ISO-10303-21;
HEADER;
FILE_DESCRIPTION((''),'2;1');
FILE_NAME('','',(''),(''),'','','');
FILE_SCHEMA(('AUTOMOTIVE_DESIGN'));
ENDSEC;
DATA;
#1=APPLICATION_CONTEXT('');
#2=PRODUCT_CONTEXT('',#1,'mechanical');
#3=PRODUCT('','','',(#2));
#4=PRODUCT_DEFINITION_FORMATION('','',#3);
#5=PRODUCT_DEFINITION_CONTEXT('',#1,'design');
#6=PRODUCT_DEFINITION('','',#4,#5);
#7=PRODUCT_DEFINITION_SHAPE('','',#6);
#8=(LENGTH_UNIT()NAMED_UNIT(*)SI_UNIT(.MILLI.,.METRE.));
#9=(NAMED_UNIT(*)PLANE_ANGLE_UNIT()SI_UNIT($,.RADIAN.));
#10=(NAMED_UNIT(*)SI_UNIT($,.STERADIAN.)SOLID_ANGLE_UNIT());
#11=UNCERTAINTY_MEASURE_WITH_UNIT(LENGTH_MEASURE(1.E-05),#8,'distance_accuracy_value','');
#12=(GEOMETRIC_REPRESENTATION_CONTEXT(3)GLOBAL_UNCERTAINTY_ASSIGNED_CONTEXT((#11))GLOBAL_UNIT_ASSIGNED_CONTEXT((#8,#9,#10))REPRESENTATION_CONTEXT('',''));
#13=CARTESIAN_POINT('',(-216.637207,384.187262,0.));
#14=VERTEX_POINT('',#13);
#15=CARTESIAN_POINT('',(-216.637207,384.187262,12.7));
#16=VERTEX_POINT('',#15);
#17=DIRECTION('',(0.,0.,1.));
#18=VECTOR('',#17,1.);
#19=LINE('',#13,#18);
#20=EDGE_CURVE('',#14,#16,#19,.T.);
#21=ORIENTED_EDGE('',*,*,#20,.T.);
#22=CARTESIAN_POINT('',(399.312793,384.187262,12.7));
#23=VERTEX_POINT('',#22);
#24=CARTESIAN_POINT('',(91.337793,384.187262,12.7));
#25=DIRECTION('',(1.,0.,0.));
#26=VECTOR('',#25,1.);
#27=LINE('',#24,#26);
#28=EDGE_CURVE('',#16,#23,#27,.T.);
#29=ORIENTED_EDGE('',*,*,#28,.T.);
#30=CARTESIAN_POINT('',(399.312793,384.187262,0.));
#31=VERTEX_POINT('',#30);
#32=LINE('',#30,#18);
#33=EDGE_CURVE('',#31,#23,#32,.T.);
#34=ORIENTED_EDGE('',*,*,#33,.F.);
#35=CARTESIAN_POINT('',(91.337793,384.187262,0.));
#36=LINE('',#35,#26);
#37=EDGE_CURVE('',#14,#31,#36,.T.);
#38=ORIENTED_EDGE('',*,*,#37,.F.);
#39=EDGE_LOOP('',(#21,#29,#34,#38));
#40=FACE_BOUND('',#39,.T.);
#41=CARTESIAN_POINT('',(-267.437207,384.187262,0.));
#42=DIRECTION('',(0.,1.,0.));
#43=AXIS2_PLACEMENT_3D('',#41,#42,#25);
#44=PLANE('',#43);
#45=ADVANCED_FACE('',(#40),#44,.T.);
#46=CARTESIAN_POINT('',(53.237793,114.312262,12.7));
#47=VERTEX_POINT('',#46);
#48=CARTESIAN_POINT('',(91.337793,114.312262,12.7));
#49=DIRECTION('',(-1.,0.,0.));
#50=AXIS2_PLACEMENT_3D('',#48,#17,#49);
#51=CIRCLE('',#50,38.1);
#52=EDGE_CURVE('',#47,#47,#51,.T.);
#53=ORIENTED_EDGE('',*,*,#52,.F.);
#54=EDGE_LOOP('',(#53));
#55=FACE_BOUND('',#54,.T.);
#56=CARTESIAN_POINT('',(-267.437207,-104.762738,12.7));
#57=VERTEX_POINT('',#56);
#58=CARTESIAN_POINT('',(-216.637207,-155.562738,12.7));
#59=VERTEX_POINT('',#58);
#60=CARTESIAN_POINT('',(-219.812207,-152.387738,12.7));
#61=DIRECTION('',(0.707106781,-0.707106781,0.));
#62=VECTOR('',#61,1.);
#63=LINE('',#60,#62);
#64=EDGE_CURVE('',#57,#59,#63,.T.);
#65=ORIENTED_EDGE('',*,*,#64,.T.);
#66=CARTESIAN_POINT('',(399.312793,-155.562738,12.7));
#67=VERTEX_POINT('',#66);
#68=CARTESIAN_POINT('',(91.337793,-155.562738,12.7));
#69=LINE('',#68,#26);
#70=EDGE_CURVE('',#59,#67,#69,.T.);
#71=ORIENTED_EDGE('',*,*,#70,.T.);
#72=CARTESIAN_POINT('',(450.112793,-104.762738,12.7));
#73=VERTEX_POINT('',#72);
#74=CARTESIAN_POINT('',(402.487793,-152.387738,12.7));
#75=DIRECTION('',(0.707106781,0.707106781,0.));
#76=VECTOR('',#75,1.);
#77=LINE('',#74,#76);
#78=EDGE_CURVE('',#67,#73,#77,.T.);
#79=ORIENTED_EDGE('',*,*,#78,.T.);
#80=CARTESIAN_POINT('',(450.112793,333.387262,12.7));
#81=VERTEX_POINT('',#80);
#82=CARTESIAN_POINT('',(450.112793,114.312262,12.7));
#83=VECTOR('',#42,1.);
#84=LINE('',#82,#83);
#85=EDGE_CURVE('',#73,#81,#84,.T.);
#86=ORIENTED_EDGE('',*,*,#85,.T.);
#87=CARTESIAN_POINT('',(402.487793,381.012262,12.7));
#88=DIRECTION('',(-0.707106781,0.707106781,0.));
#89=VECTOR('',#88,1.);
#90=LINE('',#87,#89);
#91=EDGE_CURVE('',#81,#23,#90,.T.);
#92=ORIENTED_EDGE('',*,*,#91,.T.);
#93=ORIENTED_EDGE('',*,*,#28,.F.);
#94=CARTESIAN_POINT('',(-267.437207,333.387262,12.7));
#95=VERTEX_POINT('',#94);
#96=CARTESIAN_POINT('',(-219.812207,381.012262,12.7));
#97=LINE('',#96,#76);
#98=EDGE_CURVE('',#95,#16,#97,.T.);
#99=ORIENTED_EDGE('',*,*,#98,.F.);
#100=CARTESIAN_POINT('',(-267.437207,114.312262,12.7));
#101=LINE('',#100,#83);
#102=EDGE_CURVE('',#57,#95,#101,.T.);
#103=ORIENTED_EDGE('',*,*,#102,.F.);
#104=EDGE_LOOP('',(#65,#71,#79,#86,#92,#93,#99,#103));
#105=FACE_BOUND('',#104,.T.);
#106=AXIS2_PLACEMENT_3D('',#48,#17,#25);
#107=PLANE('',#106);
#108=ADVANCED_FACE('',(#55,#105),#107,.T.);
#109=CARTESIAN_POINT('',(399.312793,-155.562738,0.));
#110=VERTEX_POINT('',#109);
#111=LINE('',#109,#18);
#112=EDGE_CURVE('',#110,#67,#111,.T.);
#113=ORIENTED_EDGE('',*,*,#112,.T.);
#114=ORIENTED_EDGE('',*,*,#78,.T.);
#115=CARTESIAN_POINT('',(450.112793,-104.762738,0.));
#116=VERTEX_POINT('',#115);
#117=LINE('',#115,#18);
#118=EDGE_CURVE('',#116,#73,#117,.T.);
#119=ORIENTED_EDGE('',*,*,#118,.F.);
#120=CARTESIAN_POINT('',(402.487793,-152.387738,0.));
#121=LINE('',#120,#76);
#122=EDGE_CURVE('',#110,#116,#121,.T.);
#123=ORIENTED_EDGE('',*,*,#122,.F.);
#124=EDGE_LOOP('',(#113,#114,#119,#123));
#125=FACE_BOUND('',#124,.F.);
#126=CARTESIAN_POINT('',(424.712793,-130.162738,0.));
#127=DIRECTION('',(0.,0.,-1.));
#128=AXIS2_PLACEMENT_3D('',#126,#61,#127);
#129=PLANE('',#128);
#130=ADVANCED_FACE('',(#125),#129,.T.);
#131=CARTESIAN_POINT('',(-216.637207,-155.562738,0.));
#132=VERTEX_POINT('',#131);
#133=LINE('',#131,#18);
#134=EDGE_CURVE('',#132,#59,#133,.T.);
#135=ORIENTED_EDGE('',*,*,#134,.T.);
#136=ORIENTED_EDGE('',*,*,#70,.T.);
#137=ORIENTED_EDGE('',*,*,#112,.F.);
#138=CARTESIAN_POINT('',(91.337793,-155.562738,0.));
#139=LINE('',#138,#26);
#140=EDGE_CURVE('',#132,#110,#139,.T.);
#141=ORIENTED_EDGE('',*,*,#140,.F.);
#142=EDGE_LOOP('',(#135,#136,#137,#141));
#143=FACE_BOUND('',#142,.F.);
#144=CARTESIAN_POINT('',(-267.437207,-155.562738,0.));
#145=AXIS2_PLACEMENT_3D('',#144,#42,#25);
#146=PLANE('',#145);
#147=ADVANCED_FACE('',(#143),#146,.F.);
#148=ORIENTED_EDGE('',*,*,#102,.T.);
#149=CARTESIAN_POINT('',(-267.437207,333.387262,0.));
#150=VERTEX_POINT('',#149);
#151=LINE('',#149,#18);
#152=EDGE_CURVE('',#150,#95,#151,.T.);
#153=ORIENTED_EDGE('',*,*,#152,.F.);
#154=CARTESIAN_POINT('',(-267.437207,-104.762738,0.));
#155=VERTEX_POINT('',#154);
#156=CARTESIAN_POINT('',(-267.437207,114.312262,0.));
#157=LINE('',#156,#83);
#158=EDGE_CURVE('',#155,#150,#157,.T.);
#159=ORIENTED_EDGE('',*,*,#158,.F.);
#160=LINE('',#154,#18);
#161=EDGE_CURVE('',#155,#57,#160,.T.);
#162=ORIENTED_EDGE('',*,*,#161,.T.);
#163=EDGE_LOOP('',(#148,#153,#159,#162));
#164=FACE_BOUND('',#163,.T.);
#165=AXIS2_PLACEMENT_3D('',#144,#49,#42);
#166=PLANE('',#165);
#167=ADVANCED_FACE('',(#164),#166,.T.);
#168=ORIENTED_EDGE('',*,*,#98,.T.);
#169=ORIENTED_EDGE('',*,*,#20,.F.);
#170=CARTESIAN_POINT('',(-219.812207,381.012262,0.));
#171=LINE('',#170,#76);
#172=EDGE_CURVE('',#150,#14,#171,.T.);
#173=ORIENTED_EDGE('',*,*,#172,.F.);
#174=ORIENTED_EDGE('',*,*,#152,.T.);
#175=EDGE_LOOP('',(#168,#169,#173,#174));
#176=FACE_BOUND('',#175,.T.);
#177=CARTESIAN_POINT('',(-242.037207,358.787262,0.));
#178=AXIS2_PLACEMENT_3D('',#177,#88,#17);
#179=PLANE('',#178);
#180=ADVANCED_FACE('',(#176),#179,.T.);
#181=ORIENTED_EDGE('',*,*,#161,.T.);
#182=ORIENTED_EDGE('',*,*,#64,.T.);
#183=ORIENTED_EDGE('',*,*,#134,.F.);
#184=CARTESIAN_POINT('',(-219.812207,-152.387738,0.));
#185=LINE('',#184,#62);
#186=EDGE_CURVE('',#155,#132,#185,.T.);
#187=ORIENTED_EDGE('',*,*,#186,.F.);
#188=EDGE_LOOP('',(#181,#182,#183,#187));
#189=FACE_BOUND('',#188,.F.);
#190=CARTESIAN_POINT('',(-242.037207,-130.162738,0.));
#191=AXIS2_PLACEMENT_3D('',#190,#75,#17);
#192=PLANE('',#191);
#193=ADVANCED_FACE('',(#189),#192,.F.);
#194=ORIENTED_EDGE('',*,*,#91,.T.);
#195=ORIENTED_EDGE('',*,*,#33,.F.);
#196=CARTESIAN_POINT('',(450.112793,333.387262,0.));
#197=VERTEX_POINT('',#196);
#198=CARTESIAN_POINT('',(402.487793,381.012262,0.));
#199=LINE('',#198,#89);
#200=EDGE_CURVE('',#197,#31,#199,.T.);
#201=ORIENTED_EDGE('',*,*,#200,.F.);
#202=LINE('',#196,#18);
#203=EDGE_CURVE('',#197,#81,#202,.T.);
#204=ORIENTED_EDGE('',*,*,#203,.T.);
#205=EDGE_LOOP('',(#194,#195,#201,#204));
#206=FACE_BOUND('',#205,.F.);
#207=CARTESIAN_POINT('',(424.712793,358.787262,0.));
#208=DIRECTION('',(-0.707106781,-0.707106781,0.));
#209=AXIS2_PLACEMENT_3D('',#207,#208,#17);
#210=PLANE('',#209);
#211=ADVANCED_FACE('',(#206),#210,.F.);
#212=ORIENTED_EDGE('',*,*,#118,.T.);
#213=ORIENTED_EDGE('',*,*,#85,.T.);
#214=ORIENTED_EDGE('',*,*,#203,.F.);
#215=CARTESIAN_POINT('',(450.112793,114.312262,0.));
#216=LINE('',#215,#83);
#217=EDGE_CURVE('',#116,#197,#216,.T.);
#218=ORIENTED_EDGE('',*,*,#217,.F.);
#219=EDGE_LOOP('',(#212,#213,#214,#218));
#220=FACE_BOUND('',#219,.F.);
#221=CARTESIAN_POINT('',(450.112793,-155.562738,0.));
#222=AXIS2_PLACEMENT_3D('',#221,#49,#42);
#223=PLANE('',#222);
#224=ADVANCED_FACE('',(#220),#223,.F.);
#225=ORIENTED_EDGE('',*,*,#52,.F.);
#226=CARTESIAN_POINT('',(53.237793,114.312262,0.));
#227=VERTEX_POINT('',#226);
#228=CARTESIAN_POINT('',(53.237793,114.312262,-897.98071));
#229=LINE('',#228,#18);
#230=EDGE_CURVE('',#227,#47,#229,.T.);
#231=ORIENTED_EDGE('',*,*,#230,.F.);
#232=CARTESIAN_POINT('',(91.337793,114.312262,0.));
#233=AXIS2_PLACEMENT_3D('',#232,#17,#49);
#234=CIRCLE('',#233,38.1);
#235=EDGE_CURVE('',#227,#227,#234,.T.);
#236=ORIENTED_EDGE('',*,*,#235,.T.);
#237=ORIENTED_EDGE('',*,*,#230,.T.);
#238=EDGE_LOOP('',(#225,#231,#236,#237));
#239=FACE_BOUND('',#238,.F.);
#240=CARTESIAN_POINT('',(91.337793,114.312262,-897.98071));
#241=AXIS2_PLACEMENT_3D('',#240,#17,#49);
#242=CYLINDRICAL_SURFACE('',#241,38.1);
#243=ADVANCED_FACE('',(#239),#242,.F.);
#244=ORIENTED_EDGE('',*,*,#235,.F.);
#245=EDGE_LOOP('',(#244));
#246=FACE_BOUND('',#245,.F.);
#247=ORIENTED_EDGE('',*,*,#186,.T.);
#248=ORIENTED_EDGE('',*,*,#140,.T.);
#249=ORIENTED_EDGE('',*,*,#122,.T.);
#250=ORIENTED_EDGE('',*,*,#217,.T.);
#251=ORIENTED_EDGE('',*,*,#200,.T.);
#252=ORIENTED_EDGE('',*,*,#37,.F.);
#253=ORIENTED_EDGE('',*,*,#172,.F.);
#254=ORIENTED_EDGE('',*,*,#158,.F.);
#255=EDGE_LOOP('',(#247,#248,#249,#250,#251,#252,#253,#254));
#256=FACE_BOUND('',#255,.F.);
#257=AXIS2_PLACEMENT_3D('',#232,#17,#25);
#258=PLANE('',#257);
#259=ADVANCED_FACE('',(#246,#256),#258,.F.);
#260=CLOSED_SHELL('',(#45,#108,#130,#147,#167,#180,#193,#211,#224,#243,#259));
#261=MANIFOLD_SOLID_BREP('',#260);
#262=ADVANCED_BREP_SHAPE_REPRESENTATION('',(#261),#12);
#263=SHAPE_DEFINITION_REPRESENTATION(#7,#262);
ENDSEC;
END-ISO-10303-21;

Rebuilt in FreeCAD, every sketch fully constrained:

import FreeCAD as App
import Part
import Sketcher

V = App.Vector
Q = App.Units.Quantity


def edges_at(feature, points):
    """Names of the edges that pass closest to the given points."""
    edges = feature.Shape.Edges
    near = lambda p: min(range(len(edges)), key=lambda i: edges[i].distToShape(Part.Vertex(*p))[0])
    return sorted({f"Edge{near(p) + 1}" for p in points})


def add_polygon(sketch, points):
    """Adds a closed chain of lines whose ends are joined by coincident constraints."""
    first, n = sketch.GeometryCount, len(points)
    for a, b in zip(points, points[1:] + points[:1]):
        sketch.addGeometry(Part.LineSegment(App.Vector(*a, 0), App.Vector(*b, 0)), False)
    for i in range(n):
        sketch.addConstraint(Sketcher.Constraint("Coincident", first + i, 2, first + (i + 1) % n, 1))

doc = App.newDocument("Part")
params = doc.addObject("Spreadsheet::Sheet", "Params")
for row, (alias, value) in enumerate([
    ("sketch1_width", "28.25 in"),
    ("sketch1_height", "21.25 in"),
    ("pad1_length", "0.5 in"),
    ("chamfer_size", "2 in"),
    ("sketch2_diameter", "3 in"),
    ("hole_diameter", "3 in"),
], start=1):
    params.set(f"A{row}", alias)
    params.set(f"B{row}", "=" + value)
    params.setAlias(f"B{row}", alias)

body = doc.addObject("PartDesign::Body", "Body")

sketch1 = body.newObject("Sketcher::SketchObject", "Sketch")
sketch1.AttachmentSupport = (doc.getObject("XY_Plane"), [""])
sketch1.MapMode = "FlatFace"
add_polygon(sketch1, [(-267, 384), (-267, -156), (450, -156), (450, 384)])
sketch1.addConstraint([
    Sketcher.Constraint("Vertical", 0),
    Sketcher.Constraint("Horizontal", 1),
    Sketcher.Constraint("Vertical", 2),
    Sketcher.Constraint("Horizontal", 3),
    Sketcher.Constraint("DistanceX", 1, 1, 1, 2, Q("28.25 in")),
    Sketcher.Constraint("DistanceY", 0, 2, 0, 1, Q("21.25 in")),
    Sketcher.Constraint("DistanceY", 0, 2, -1, 1, 155.562738),
    Sketcher.Constraint("DistanceX", 0, 2, -1, 1, 267.437207),
])
sketch1.setExpression("Constraints[8]", "Params.sketch1_width")
sketch1.setExpression("Constraints[9]", "Params.sketch1_height")
pad1 = body.newObject("PartDesign::Pad", "Pad")
pad1.Profile = sketch1
pad1.setExpression("Length", "Params.pad1_length")
doc.recompute()

chamfer = body.newObject("PartDesign::Chamfer", "Chamfer")
chamfer.Base = (pad1, edges_at(pad1, [
    (450.113, 384.187, 6.35),
    (450.113, -155.563, 6.35),
    (-267.437, -155.563, 6.35),
    (-267.437, 384.187, 6.35),
]))
chamfer.setExpression("Size", "Params.chamfer_size")

sketch2 = body.newObject("Sketcher::SketchObject", "Sketch001")
sketch2.AttachmentSupport = (doc.getObject("XY_Plane"), [""])
sketch2.MapMode = "FlatFace"
sketch2.addGeometry(Part.Circle(V(91, 114, 0), V(0, 0, 1), 38), False)
sketch2.addConstraint([
    Sketcher.Constraint("Diameter", 0, Q("3 in")),
    Sketcher.Constraint("DistanceX", -1, 1, 0, 3, 91.337793),
    Sketcher.Constraint("DistanceY", -1, 1, 0, 3, 114.312262),
])
sketch2.setExpression("Constraints[0]", "Params.sketch2_diameter")
doc.recompute()
hole = body.newObject("PartDesign::Hole", "Hole")
hole.Profile = sketch2
hole.ThreadType = "None"
hole.setExpression("Diameter", "Params.hole_diameter")
hole.DepthType = "ThroughAll"
hole.Reversed = True

doc.recompute()
